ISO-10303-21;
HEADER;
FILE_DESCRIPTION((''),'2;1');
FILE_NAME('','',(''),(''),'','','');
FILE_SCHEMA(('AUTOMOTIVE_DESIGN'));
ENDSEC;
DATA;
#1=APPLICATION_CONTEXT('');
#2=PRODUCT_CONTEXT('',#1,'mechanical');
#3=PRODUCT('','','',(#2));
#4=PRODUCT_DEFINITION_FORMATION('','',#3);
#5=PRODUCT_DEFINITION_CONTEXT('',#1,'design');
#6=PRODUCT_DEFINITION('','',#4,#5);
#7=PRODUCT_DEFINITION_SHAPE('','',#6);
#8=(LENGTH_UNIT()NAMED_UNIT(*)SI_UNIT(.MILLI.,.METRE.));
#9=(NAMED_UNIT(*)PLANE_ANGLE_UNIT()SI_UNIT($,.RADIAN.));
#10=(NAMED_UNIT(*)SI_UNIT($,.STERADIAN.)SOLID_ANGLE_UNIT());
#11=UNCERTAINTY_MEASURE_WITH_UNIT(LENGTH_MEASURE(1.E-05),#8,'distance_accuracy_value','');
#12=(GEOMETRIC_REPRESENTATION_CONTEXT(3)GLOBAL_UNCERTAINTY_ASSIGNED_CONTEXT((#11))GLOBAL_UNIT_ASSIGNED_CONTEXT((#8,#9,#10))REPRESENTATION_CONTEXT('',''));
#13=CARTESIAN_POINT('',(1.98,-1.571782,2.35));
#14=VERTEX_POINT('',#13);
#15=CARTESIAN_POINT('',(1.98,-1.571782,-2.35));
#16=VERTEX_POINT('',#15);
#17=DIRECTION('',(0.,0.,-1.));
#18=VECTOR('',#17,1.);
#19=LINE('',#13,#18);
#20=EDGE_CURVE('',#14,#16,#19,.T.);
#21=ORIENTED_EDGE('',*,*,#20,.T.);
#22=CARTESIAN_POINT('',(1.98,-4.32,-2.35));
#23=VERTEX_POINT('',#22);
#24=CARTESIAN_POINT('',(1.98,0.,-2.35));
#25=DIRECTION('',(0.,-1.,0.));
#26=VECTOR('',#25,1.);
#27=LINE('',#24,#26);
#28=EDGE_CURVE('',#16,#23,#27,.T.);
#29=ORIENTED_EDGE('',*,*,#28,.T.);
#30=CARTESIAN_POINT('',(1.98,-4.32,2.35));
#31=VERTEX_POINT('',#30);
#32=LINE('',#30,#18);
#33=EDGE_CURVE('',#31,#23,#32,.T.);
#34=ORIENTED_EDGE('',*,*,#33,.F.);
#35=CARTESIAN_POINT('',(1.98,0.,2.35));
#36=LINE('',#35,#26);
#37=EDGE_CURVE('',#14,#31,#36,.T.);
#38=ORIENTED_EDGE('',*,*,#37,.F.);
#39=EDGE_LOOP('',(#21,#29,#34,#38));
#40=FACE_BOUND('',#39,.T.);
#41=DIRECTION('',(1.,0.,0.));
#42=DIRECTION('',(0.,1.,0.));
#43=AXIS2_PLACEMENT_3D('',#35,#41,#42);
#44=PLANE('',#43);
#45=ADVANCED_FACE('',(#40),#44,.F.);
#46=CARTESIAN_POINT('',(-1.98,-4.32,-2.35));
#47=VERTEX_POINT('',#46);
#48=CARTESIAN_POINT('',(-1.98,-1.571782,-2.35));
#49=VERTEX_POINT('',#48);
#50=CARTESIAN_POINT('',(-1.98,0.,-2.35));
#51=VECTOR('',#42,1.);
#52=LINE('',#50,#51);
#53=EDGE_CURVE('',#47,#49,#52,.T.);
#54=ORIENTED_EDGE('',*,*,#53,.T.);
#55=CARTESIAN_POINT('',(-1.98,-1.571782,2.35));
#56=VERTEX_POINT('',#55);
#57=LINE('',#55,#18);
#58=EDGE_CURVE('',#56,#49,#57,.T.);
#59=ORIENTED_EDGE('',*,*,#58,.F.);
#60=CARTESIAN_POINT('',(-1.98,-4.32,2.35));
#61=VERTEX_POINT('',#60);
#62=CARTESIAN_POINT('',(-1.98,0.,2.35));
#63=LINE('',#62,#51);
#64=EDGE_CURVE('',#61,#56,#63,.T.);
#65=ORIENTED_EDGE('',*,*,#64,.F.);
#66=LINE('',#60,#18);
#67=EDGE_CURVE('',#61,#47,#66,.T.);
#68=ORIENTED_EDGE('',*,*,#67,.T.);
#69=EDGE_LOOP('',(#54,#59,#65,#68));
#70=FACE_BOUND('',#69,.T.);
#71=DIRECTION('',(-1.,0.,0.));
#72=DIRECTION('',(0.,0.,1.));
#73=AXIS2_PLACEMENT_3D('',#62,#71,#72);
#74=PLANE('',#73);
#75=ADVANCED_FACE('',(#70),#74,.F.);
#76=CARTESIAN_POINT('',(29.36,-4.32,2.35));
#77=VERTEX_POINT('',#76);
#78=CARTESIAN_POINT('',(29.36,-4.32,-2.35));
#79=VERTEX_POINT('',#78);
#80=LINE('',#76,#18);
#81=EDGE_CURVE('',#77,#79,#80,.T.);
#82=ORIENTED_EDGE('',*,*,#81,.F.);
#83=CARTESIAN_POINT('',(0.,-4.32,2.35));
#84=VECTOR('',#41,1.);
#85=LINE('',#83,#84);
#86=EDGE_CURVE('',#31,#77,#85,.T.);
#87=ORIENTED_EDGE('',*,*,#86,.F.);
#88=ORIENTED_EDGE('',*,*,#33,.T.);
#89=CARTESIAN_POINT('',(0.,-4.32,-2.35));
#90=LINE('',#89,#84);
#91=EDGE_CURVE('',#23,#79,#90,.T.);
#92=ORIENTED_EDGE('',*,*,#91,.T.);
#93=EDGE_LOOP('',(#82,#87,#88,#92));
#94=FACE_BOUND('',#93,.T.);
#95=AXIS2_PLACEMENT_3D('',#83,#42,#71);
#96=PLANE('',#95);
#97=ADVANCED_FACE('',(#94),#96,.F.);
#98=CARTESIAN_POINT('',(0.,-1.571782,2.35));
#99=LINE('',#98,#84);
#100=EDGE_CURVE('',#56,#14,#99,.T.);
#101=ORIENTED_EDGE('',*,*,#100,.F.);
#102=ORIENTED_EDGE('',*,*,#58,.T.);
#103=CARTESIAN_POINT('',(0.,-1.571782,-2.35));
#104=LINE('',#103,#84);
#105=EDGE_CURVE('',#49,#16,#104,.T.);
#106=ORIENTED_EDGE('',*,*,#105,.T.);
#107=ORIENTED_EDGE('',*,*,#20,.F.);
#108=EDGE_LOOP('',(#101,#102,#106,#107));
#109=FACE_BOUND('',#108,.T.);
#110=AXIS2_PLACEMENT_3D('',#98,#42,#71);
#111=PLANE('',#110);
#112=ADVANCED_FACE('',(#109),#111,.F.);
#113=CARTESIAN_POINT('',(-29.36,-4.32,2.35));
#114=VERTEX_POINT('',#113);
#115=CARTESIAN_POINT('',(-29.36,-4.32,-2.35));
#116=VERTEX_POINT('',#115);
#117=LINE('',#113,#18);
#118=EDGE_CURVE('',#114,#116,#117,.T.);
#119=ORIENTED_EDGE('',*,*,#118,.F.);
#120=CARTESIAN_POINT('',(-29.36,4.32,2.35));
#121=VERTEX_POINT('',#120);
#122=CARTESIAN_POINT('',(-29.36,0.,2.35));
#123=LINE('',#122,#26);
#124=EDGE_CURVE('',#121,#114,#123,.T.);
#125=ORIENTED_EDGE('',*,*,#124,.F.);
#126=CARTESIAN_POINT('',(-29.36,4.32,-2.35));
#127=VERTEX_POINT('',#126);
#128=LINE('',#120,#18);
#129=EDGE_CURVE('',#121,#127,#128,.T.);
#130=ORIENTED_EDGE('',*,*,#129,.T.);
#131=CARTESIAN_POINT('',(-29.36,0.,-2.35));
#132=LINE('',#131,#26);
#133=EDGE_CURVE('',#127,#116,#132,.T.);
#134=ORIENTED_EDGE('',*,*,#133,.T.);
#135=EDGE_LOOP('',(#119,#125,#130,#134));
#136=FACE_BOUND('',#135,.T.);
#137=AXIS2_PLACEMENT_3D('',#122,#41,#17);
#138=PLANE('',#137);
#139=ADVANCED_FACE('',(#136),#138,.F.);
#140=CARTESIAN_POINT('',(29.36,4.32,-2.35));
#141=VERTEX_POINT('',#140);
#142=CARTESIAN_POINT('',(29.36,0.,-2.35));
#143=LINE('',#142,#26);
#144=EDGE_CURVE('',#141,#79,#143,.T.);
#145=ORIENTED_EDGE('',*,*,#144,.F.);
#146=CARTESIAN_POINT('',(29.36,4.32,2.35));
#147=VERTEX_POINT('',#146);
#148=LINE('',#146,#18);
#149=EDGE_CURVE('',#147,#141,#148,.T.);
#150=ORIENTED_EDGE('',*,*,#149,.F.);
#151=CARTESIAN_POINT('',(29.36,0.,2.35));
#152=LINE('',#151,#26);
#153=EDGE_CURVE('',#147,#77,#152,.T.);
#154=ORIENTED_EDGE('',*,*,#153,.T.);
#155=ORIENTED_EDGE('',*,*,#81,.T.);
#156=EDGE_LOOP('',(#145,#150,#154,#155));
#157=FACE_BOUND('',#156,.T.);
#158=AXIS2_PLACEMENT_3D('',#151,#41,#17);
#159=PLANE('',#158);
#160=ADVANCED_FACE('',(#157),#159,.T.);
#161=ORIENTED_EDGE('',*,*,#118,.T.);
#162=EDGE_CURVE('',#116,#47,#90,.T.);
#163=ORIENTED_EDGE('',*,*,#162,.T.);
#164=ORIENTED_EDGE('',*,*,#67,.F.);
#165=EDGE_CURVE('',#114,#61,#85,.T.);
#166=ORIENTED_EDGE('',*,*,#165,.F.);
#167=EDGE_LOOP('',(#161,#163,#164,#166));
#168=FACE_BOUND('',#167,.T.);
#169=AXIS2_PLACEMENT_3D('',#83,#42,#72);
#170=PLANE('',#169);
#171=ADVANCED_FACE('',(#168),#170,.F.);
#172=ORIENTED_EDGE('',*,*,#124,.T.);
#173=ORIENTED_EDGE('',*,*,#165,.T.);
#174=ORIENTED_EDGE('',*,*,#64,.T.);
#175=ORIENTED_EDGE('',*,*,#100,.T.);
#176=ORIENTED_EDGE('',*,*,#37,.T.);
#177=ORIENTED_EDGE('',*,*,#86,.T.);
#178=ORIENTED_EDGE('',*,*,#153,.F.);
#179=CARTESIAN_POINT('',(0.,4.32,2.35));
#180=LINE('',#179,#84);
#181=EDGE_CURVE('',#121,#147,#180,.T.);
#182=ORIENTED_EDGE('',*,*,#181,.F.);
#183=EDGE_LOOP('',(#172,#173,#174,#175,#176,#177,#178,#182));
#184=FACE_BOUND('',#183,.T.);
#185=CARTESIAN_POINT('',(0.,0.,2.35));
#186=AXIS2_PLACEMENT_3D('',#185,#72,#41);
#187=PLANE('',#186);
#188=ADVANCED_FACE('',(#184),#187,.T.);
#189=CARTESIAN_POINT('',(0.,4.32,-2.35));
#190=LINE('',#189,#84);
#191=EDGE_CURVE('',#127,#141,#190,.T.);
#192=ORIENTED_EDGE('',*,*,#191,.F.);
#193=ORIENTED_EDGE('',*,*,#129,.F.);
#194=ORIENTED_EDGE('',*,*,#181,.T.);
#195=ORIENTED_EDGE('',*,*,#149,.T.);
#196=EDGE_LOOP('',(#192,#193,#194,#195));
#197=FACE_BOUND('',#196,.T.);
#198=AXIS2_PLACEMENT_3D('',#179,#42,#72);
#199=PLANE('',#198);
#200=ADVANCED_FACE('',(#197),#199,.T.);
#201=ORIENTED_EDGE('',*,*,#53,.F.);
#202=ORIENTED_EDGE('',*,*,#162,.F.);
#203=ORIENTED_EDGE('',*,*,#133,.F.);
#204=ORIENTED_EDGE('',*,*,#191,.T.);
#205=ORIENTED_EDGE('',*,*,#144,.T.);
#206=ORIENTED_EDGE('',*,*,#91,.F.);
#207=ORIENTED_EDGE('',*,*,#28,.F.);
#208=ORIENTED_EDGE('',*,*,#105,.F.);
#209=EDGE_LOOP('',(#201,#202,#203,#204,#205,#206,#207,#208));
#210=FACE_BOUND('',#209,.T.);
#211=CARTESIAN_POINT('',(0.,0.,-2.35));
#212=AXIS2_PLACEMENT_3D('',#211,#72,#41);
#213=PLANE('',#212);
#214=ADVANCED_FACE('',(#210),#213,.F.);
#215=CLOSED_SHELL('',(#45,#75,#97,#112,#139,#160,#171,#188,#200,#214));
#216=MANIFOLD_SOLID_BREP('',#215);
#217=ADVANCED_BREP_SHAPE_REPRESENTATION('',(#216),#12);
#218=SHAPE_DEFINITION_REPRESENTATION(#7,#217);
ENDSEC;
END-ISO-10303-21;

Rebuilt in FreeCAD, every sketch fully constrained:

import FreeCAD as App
import Part
import Sketcher
from FreeCAD import Vector

doc = App.newDocument("Part")
params = doc.addObject("Spreadsheet::Sheet", "Params")
for row, (alias, value) in enumerate([
    ("sketch1_width", "3.96 mm"),
    ("sketch1_width2", "27.38 mm"),
    ("sketch1_height", "8.64 mm"),
    ("pad1_length", "4.7 mm"),
], start=1):
    params.set(f"A{row}", alias)
    params.set(f"B{row}", "=" + value)
    params.setAlias(f"B{row}", alias)

body = doc.addObject("PartDesign::Body", "Body")

# Sketch on XY plane
sketch1 = body.newObject("Sketcher::SketchObject", "Sketch")
sketch1.AttachmentSupport = (doc.getObject("XY_Plane"), [""])
sketch1.MapMode = "FlatFace"
sketch1.addGeometry([
    Part.LineSegment(Vector(-2, -4.3, 0), Vector(-2, -1.6, 0)),  # 0
    Part.LineSegment(Vector(-2, -1.6, 0), Vector(2, -1.6, 0)),  # 1
    Part.LineSegment(Vector(2, -1.6, 0), Vector(2, -4.3, 0)),  # 2
    Part.LineSegment(Vector(2, -4.3, 0), Vector(29.4, -4.3, 0)),  # 3
    Part.LineSegment(Vector(29.4, -4.3, 0), Vector(29.4, 4.3, 0)),  # 4
    Part.LineSegment(Vector(29.4, 4.3, 0), Vector(-29.4, 4.3, 0)),  # 5
    Part.LineSegment(Vector(-29.4, 4.3, 0), Vector(-29.4, -4.3, 0)),  # 6
    Part.LineSegment(Vector(-29.4, -4.3, 0), Vector(-2, -4.3, 0)),  # 7
], False)
sketch1.addConstraint([
    Sketcher.Constraint("Coincident", 0, 2, 1, 1),
    Sketcher.Constraint("Coincident", 1, 2, 2, 1),
    Sketcher.Constraint("Coincident", 2, 2, 3, 1),
    Sketcher.Constraint("Coincident", 3, 2, 4, 1),
    Sketcher.Constraint("Coincident", 4, 2, 5, 1),
    Sketcher.Constraint("Coincident", 5, 2, 6, 1),
    Sketcher.Constraint("Coincident", 6, 2, 7, 1),
    Sketcher.Constraint("Coincident", 7, 2, 0, 1),
    Sketcher.Constraint("Vertical", 0),
    Sketcher.Constraint("Horizontal", 1),
    Sketcher.Constraint("Vertical", 2),
    Sketcher.Constraint("Horizontal", 3),
    Sketcher.Constraint("Vertical", 4),
    Sketcher.Constraint("Horizontal", 5),
    Sketcher.Constraint("Vertical", 6),
    Sketcher.Constraint("Horizontal", 7),
    Sketcher.Constraint("Symmetric", 3, 2, 5, 2, -1, 1),
    Sketcher.Constraint("Symmetric", 2, 2, 7, 2, -2),
    Sketcher.Constraint("DistanceX", 1, 1, 1, 2, 3.96),
    Sketcher.Constraint("DistanceX", 3, 1, 3, 2, 27.38),
    Sketcher.Constraint("DistanceY", 4, 1, 4, 2, 8.64),
    Sketcher.Constraint("DistanceY", 0, 1, 0, 2, 2.748218),
])
sketch1.setExpression("Constraints[18]", "Params.sketch1_width")
sketch1.setExpression("Constraints[19]", "Params.sketch1_width2")
sketch1.setExpression("Constraints[20]", "Params.sketch1_height")
pad1 = body.newObject("PartDesign::Pad", "Pad")
pad1.Profile = sketch1
pad1.setExpression("Length", "Params.pad1_length")
pad1.Midplane = True

doc.recompute()
